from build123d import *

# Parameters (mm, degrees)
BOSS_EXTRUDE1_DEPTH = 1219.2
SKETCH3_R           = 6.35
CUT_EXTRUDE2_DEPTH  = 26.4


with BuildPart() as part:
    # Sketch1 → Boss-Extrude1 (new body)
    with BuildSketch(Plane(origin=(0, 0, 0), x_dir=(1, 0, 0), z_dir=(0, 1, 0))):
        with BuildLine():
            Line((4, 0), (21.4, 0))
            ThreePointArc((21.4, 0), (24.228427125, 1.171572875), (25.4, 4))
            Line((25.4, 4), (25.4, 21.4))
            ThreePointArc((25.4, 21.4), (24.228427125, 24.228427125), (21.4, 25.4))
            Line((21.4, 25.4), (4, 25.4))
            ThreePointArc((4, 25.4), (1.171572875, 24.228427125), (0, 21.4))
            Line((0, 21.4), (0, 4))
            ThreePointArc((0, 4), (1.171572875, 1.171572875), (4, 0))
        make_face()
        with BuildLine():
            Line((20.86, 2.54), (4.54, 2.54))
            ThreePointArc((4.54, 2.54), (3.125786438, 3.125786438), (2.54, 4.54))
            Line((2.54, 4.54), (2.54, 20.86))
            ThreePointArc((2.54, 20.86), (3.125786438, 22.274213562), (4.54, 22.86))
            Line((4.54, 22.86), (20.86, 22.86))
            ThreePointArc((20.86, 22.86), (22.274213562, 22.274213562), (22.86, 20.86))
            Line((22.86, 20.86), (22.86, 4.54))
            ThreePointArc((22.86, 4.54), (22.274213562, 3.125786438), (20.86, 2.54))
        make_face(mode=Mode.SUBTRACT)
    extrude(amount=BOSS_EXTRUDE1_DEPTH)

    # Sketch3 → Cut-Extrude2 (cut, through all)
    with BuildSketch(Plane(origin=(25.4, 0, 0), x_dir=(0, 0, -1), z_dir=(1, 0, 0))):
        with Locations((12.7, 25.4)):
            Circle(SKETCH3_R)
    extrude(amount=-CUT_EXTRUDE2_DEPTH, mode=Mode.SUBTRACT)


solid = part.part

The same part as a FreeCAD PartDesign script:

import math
import FreeCAD as App
import Part
import Sketcher
from FreeCAD import Vector

doc = App.newDocument("Part")
params = doc.addObject("Spreadsheet::Sheet", "Params")
for row, (alias, value) in enumerate([
    ("sketch1_radius", "4 mm"),
    ("sketch1_radius2", "2 mm"),
    ("sketch1_width", "17.4 mm"),
    ("sketch1_width2", "16.32 mm"),
    ("pad1_length", "1219.2 mm"),
    ("sketch2_diameter", "12.7 mm"),
], start=1):
    params.set(f"A{row}", alias)
    params.set(f"B{row}", "=" + value)
    params.setAlias(f"B{row}", alias)

body = doc.addObject("PartDesign::Body", "Body")

# Sketch on XZ plane
sketch1 = body.newObject("Sketcher::SketchObject", "Sketch")
sketch1.AttachmentSupport = (doc.getObject("XZ_Plane"), [""])
sketch1.MapMode = "FlatFace"
sketch1.addGeometry([
    Part.LineSegment(Vector(4, 0, 0), Vector(21.4, 0, 0)),  # 0
    Part.ArcOfCircle(Part.Circle(Vector(21.4, -4, 0), Vector(0, 0, 1), 4), math.radians(0), math.radians(90)),  # 1
    Part.LineSegment(Vector(25.4, -4, 0), Vector(25.4, -21.4, 0)),  # 2
    Part.ArcOfCircle(Part.Circle(Vector(21.4, -21.4, 0), Vector(0, 0, 1), 4), math.radians(-90), math.radians(0)),  # 3
    Part.LineSegment(Vector(21.4, -25.4, 0), Vector(4, -25.4, 0)),  # 4
    Part.ArcOfCircle(Part.Circle(Vector(4, -21.4, 0), Vector(0, 0, 1), 4), math.radians(180), math.radians(270)),  # 5
    Part.LineSegment(Vector(0, -21.4, 0), Vector(0, -4, 0)),  # 6
    Part.ArcOfCircle(Part.Circle(Vector(4, -4, 0), Vector(0, 0, 1), 4), math.radians(90), math.radians(180)),  # 7
    Part.ArcOfCircle(Part.Circle(Vector(20.9, -4.5, 0), Vector(0, 0, 1), 2), math.radians(0), math.radians(90)),  # 8
    Part.LineSegment(Vector(20.9, -2.5, 0), Vector(4.5, -2.5, 0)),  # 9
    Part.ArcOfCircle(Part.Circle(Vector(4.5, -4.5, 0), Vector(0, 0, 1), 2), math.radians(90), math.radians(180)),  # 10
    Part.LineSegment(Vector(2.5, -4.5, 0), Vector(2.5, -20.9, 0)),  # 11
    Part.ArcOfCircle(Part.Circle(Vector(4.5, -20.9, 0), Vector(0, 0, 1), 2), math.radians(-180), math.radians(-90)),  # 12
    Part.LineSegment(Vector(4.5, -22.9, 0), Vector(20.9, -22.9, 0)),  # 13
    Part.ArcOfCircle(Part.Circle(Vector(20.9, -20.9, 0), Vector(0, 0, 1), 2), math.radians(-90), math.radians(0)),  # 14
    Part.LineSegment(Vector(22.9, -20.9, 0), Vector(22.9, -4.5, 0)),  # 15
], False)
sketch1.addConstraint([
    Sketcher.Constraint("Tangent", 0, 2, 1, 2),
    Sketcher.Constraint("Tangent", 1, 1, 2, 1),
    Sketcher.Constraint("Tangent", 2, 2, 3, 2),
    Sketcher.Constraint("Tangent", 3, 1, 4, 1),
    Sketcher.Constraint("Tangent", 4, 2, 5, 2),
    Sketcher.Constraint("Tangent", 5, 1, 6, 1),
    Sketcher.Constraint("Tangent", 6, 2, 7, 2),
    Sketcher.Constraint("Tangent", 7, 1, 0, 1),
    Sketcher.Constraint("Tangent", 8, 2, 9, 1),
    Sketcher.Constraint("Tangent", 9, 2, 10, 1),
    Sketcher.Constraint("Tangent", 10, 2, 11, 1),
    Sketcher.Constraint("Tangent", 11, 2, 12, 1),
    Sketcher.Constraint("Tangent", 12, 2, 13, 1),
    Sketcher.Constraint("Tangent", 13, 2, 14, 1),
    Sketcher.Constraint("Tangent", 14, 2, 15, 1),
    Sketcher.Constraint("Tangent", 15, 2, 8, 1),
    Sketcher.Constraint("Horizontal", 0),
    Sketcher.Constraint("Vertical", 2),
    Sketcher.Constraint("Horizontal", 4),
    Sketcher.Constraint("Vertical", 6),
    Sketcher.Constraint("Horizontal", 9),
    Sketcher.Constraint("Vertical", 11),
    Sketcher.Constraint("Horizontal", 13),
    Sketcher.Constraint("Vertical", 15),
    Sketcher.Constraint("Equal", 1, 3),
    Sketcher.Constraint("Equal", 3, 5),
    Sketcher.Constraint("Equal", 5, 7),
    Sketcher.Constraint("Equal", 8, 10),
    Sketcher.Constraint("Equal", 10, 12),
    Sketcher.Constraint("Equal", 12, 14),
    Sketcher.Constraint("PointOnObject", 0, 2, -1),
    Sketcher.Constraint("PointOnObject", 5, 1, -2),
    Sketcher.Constraint("Equal", 4, 2),
    Sketcher.Constraint("Equal", 13, 11),
    Sketcher.Constraint("Radius", 1, 4.0),
    Sketcher.Constraint("Radius", 8, 2.0),
    Sketcher.Constraint("DistanceX", 0, 1, 0, 2, 17.4),
    Sketcher.Constraint("DistanceX", 9, 2, 9, 1, 16.32),
    Sketcher.Constraint("DistanceX", -1, 1, 8, 3, 20.86),
    Sketcher.Constraint("DistanceY", 8, 3, -1, 1, 4.54),
])
sketch1.setExpression("Constraints[34]", "Params.sketch1_radius")
sketch1.setExpression("Constraints[35]", "Params.sketch1_radius2")
sketch1.setExpression("Constraints[36]", "Params.sketch1_width")
sketch1.setExpression("Constraints[37]", "Params.sketch1_width2")
pad1 = body.newObject("PartDesign::Pad", "Pad")
pad1.Profile = sketch1
pad1.setExpression("Length", "Params.pad1_length")
pad1.Reversed = True

# Sketch on YZ plane
sketch2 = body.newObject("Sketcher::SketchObject", "Sketch001")
sketch2.AttachmentSupport = (doc.getObject("YZ_Plane"), [""])
sketch2.MapMode = "FlatFace"
sketch2.AttachmentOffset = App.Placement(Vector(0, 0, 25.4), App.Rotation())
sketch2.addGeometry(Part.Circle(Vector(25, -13, 0), Vector(0, 0, 1), 6), False)
sketch2.addConstraint([
    Sketcher.Constraint("Diameter", 0, 12.7),
    Sketcher.Constraint("DistanceX", -1, 1, 0, 3, 25.4),
    Sketcher.Constraint("DistanceY", 0, 3, -1, 1, 12.7),
])
sketch2.setExpression("Constraints[0]", "Params.sketch2_diameter")
pocket1 = body.newObject("PartDesign::Pocket", "Pocket")
pocket1.Profile = sketch2
pocket1.Type = "ThroughAll"

doc.recompute()
